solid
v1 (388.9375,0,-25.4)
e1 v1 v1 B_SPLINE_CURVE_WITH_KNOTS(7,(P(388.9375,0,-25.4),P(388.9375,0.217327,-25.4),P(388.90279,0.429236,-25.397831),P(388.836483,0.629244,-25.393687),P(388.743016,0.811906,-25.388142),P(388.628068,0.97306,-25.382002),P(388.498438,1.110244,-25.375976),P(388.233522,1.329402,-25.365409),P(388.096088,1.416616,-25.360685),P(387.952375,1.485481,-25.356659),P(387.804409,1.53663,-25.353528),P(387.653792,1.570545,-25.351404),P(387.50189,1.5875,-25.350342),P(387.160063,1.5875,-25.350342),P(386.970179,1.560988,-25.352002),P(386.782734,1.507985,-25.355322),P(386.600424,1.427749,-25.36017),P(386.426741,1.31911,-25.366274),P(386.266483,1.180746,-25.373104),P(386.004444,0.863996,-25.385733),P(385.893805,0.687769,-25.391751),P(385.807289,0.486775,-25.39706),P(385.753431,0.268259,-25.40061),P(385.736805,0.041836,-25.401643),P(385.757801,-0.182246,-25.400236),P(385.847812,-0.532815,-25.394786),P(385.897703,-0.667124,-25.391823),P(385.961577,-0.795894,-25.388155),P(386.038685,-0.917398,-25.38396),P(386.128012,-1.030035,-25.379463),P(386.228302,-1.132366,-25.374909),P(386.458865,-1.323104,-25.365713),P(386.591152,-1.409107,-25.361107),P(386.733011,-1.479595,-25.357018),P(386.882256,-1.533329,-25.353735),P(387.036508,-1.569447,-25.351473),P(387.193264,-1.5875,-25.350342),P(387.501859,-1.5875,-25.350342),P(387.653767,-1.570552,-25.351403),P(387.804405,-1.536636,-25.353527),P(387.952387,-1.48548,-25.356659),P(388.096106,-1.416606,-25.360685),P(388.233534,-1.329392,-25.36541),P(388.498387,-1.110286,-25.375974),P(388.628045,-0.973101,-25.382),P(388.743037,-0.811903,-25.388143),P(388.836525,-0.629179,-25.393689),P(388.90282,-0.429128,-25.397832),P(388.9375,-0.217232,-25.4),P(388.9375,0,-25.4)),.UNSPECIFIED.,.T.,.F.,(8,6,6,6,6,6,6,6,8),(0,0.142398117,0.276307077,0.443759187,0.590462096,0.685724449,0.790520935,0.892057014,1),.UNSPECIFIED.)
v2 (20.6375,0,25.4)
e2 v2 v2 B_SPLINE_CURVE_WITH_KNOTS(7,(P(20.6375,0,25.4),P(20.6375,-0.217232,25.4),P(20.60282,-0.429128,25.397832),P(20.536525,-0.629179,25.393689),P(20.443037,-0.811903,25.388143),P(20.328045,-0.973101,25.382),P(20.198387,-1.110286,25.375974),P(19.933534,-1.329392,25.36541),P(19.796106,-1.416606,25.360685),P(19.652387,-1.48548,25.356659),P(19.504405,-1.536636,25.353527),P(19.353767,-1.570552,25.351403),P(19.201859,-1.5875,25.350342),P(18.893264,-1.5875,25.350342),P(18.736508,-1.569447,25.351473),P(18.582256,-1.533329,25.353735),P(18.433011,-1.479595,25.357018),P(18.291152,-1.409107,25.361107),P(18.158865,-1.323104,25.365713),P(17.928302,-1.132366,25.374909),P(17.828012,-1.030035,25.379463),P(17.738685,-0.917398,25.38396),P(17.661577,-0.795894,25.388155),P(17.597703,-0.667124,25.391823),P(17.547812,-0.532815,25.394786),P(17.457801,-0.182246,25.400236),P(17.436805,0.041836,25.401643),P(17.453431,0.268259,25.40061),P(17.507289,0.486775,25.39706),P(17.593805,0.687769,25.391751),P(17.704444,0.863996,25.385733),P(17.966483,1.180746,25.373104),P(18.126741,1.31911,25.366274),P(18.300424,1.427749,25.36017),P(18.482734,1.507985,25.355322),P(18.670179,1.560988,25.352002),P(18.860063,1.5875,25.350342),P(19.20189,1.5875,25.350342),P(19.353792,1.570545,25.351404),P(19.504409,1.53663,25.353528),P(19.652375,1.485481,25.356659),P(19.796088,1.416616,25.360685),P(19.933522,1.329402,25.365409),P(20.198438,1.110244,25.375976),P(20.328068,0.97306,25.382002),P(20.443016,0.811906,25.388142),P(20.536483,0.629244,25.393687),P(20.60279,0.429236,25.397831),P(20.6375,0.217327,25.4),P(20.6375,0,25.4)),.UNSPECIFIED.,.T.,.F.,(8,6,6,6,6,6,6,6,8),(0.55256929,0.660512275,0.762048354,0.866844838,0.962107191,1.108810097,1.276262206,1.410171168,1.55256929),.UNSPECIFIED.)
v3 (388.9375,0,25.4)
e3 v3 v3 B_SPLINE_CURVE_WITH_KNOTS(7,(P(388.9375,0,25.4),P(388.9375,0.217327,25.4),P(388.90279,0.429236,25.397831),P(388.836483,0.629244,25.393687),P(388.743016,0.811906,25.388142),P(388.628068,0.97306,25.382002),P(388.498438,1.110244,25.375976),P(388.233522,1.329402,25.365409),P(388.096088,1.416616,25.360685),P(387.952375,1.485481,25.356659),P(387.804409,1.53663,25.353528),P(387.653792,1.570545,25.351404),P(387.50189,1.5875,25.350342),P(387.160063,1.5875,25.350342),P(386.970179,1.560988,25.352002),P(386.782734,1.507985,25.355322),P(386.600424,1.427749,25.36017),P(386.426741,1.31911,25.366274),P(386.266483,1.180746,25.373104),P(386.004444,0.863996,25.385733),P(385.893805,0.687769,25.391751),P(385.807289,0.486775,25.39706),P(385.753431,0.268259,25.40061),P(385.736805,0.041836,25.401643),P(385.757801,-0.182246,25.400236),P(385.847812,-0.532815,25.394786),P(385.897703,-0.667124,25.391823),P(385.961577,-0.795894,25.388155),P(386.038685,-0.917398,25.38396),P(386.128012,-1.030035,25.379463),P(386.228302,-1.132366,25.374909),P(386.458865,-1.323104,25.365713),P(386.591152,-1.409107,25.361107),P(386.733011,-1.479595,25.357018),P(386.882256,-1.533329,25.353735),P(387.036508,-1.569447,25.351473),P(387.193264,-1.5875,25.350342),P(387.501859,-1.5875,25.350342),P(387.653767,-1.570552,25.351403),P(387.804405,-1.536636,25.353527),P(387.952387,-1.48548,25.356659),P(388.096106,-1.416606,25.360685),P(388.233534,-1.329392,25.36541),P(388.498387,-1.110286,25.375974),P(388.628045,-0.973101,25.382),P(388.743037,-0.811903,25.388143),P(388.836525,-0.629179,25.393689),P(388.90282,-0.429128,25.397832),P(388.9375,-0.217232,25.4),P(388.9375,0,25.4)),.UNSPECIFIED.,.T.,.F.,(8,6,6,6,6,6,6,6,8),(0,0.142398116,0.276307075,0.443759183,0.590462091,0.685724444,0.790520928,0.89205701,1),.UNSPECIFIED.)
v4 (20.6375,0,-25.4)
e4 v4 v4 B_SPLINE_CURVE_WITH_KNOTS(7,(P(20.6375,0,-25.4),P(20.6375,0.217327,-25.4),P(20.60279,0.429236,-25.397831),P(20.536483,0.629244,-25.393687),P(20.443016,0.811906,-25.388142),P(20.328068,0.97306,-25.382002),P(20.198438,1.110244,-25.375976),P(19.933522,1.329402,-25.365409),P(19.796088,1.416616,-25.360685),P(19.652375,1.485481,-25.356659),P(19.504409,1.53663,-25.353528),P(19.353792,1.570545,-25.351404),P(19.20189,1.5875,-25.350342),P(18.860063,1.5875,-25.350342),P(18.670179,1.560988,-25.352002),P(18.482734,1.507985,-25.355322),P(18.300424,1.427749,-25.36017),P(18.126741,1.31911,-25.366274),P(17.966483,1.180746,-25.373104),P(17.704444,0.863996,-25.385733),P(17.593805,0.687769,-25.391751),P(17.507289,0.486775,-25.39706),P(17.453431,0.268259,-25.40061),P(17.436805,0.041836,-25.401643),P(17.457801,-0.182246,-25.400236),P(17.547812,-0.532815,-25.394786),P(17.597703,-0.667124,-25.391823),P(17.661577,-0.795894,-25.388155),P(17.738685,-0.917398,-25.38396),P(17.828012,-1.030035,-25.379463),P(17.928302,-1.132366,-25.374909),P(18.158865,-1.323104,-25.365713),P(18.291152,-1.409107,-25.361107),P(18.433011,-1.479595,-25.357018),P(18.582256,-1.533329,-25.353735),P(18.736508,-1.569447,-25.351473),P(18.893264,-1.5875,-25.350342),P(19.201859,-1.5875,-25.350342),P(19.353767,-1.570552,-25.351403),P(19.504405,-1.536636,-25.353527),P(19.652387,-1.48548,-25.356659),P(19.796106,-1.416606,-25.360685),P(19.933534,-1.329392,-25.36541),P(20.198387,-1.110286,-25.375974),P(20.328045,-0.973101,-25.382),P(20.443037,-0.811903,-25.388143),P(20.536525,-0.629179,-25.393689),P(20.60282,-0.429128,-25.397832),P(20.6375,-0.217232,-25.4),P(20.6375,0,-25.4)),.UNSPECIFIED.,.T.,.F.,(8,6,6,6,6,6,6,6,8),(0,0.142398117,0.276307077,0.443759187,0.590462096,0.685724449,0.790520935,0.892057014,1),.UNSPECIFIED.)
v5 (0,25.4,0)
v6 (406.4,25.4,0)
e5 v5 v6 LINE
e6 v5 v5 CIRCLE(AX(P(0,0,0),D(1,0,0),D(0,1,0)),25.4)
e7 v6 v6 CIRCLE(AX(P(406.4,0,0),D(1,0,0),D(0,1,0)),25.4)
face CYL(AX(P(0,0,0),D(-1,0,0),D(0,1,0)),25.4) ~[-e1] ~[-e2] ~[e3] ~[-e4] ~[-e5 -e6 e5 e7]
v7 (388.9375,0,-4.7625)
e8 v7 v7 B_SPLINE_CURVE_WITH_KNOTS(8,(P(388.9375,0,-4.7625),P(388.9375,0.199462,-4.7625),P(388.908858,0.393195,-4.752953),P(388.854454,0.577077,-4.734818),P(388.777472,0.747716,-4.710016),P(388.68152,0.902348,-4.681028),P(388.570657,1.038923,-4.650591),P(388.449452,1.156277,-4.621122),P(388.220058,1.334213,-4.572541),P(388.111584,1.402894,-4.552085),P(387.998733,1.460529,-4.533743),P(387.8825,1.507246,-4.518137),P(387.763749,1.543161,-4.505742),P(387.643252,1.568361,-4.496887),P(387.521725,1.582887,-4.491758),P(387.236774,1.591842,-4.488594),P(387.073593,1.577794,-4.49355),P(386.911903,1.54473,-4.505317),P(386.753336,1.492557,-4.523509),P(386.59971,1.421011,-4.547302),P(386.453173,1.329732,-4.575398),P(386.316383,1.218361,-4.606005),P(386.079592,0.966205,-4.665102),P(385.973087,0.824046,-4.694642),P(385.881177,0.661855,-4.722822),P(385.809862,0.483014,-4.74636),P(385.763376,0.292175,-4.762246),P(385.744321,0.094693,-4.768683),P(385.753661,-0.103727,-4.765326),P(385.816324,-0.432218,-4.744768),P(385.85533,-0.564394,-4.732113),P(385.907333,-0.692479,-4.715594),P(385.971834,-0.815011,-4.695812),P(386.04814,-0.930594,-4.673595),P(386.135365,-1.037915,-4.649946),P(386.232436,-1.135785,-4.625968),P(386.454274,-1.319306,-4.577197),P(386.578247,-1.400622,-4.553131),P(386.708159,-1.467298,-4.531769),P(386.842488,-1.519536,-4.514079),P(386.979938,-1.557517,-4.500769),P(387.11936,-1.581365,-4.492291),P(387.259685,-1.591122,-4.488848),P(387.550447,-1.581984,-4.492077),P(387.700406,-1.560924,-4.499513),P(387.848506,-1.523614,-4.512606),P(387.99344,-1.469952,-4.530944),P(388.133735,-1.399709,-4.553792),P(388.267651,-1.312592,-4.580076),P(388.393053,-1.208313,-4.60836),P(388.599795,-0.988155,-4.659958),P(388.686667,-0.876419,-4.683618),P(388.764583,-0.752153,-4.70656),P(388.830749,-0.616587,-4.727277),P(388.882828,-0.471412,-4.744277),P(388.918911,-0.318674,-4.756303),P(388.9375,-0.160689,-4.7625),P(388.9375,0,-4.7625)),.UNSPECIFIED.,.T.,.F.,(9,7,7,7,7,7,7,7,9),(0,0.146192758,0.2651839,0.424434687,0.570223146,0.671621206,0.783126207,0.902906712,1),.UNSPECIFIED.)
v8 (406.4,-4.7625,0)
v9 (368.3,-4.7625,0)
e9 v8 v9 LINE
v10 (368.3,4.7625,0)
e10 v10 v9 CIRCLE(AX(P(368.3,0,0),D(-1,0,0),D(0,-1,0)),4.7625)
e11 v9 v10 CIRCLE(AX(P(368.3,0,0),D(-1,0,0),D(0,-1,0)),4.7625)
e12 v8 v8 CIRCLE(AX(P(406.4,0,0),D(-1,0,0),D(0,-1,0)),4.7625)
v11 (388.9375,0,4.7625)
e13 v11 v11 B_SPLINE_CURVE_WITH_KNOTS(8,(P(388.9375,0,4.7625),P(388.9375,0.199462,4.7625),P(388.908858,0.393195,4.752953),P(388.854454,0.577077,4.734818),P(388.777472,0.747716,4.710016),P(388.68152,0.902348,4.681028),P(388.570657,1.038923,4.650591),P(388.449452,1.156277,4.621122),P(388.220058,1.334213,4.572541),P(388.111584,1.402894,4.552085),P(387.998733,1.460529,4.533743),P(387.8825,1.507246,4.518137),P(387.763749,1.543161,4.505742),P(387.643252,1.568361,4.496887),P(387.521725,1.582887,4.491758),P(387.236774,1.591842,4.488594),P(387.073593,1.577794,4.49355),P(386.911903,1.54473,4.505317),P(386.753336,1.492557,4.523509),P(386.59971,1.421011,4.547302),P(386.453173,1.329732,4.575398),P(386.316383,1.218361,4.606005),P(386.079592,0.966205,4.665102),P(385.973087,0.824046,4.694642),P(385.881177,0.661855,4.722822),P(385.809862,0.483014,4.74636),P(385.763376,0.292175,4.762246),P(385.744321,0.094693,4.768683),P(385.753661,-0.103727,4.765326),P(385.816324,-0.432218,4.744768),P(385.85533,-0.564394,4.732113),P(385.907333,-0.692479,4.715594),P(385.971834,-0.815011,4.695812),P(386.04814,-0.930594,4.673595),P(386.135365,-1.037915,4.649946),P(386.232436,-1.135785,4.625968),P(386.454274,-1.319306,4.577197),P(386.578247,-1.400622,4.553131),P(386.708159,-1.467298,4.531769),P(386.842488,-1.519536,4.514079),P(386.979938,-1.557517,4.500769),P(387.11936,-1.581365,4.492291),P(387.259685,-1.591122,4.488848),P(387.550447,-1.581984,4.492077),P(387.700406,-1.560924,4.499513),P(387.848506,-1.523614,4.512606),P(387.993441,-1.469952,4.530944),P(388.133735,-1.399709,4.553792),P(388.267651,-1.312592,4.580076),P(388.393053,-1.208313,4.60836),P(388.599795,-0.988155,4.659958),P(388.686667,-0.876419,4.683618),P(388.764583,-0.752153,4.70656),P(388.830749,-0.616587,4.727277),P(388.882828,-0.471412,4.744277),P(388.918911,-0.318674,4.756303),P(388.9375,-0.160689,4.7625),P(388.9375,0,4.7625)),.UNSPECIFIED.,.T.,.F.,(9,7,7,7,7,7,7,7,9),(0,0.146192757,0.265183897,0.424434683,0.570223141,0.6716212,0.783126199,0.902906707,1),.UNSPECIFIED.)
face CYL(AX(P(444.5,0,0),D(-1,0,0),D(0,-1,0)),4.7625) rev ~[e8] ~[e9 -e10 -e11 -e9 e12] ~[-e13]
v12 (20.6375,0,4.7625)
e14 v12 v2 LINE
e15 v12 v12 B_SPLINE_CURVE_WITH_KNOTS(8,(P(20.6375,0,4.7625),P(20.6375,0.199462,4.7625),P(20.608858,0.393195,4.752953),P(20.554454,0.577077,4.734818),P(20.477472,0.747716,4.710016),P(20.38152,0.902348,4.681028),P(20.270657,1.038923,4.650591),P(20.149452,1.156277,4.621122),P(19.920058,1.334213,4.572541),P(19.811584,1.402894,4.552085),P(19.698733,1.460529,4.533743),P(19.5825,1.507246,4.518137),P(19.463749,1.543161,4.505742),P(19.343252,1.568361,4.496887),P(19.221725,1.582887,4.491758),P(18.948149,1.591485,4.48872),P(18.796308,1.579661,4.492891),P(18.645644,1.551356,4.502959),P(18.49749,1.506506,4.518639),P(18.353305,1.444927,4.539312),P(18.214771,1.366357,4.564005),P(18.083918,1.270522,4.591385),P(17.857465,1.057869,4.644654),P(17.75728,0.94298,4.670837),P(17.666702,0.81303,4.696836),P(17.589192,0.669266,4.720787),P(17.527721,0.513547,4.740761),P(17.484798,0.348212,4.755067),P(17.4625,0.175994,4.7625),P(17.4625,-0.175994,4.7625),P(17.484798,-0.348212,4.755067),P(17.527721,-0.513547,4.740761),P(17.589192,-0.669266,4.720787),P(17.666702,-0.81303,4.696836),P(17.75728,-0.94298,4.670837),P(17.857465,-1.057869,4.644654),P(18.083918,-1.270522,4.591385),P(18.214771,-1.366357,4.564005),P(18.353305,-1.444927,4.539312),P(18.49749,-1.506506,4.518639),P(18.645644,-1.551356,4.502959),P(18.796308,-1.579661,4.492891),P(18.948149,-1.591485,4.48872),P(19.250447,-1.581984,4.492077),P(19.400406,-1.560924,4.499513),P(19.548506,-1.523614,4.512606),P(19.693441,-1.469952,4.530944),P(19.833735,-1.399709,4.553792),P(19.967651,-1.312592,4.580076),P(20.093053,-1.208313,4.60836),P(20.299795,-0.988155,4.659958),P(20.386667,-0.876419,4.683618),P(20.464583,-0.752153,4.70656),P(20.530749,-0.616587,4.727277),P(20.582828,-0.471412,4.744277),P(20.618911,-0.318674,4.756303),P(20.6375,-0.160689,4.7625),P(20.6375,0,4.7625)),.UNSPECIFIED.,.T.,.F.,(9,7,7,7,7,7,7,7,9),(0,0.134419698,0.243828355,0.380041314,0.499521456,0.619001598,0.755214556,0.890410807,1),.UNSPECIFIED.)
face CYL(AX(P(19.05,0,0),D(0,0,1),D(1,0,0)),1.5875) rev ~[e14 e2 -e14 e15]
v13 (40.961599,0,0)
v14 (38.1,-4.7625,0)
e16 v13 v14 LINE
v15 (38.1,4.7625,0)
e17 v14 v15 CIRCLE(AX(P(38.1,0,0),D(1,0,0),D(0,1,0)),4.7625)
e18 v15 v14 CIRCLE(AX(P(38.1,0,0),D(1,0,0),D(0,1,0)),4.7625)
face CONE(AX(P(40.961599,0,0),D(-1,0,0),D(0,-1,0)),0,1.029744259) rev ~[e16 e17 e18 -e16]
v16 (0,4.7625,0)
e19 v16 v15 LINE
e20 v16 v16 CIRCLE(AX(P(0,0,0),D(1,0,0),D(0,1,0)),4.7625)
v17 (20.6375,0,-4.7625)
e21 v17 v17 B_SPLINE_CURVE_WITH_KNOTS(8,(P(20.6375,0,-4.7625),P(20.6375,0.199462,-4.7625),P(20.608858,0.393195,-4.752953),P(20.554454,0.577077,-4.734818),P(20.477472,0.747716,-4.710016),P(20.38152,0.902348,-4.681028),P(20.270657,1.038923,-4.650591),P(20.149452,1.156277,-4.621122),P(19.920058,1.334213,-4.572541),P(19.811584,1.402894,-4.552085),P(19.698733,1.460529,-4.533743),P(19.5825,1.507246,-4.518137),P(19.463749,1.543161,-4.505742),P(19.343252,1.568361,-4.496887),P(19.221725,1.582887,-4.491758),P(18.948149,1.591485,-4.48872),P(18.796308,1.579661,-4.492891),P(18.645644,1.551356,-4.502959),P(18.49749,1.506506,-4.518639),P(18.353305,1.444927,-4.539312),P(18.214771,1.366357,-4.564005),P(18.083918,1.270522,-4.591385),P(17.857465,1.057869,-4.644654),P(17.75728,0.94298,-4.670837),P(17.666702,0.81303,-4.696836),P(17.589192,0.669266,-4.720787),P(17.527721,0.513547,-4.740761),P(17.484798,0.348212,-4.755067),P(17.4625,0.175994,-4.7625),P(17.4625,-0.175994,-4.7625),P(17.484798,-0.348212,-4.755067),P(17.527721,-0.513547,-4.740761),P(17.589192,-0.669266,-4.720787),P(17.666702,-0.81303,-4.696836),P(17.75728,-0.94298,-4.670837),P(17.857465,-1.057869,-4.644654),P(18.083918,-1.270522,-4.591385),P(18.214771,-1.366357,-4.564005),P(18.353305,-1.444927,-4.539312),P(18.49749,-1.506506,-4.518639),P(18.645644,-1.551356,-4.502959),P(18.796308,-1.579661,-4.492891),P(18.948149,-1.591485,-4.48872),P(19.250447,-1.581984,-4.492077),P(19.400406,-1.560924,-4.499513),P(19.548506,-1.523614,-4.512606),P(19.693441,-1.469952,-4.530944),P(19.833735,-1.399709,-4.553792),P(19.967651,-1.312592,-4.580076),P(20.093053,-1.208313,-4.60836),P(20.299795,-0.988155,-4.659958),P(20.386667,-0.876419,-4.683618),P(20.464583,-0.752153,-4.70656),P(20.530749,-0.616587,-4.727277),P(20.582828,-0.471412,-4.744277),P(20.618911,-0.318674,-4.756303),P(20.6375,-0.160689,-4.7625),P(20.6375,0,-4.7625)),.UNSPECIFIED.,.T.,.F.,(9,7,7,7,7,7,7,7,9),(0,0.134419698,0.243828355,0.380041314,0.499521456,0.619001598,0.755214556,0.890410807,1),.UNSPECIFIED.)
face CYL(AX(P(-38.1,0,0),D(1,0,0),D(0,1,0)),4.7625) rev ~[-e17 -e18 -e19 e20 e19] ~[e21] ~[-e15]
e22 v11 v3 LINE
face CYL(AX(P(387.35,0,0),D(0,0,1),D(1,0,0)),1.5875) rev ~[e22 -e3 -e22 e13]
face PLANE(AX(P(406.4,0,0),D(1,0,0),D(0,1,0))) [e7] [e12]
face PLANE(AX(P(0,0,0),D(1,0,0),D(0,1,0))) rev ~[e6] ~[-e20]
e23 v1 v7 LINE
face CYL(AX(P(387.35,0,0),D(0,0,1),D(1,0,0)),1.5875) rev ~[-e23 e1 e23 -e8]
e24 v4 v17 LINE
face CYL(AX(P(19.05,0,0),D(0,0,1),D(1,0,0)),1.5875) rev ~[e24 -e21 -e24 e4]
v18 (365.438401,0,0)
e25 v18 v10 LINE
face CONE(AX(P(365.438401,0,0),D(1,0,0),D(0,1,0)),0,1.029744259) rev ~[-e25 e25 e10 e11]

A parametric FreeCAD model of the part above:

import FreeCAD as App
import Part
import Sketcher

V = App.Vector
Q = App.Units.Quantity

doc = App.newDocument("Part")
body = doc.addObject("PartDesign::Body", "Body")

sketch1 = body.newObject("Sketcher::SketchObject", "Sketch")
sketch1.AttachmentSupport = (doc.getObject("YZ_Plane"), [""])
sketch1.MapMode = "FlatFace"
sketch1.addGeometry(Part.Circle(V(0, 0, 0), V(0, 0, 1), 25.4), False)
sketch1.addConstraint([
    Sketcher.Constraint("Coincident", 0, 3, -1, 1),
    Sketcher.Constraint("Diameter", 0, Q("2 in")),
])
pad1 = body.newObject("PartDesign::Pad", "Pad")
pad1.Profile = sketch1
pad1.Length = Q("16 in")

sketch2 = body.newObject("Sketcher::SketchObject", "Sketch001")
sketch2.AttachmentSupport = (doc.getObject("YZ_Plane"), [""])
sketch2.MapMode = "FlatFace"
sketch2.AttachmentOffset = App.Placement(V(0, 0, 16 * 25.4), App.Rotation())
sketch2.addGeometry(Part.Circle(V(0, 0, 0), V(0, 0, 1), 4.7625), False)
sketch2.addConstraint([
    Sketcher.Constraint("Coincident", 0, 3, -1, 1),
    Sketcher.Constraint("Diameter", 0, Q("0.375 in")),
])
doc.recompute()
hole = body.newObject("PartDesign::Hole", "Hole")
hole.Profile = sketch2
hole.ThreadType = "None"
hole.Diameter = Q("0.375 in")
hole.DepthType = "Dimension"
hole.Depth = Q("1.5 in")
hole.DrillPoint = "Angled"
hole.DrillPointAngle = 118

sketch3 = body.newObject("Sketcher::SketchObject", "Sketch002")
sketch3.AttachmentSupport = (doc.getObject("YZ_Plane"), [""])
sketch3.MapMode = "FlatFace"
sketch3.addGeometry(Part.Circle(V(0, 0, 0), V(0, 0, 1), 4.7625), False)
sketch3.addConstraint([
    Sketcher.Constraint("Coincident", 0, 3, -1, 1),
    Sketcher.Constraint("Diameter", 0, Q("0.375 in")),
])
doc.recompute()
hole2 = body.newObject("PartDesign::Hole", "Hole001")
hole2.Profile = sketch3
hole2.ThreadType = "None"
hole2.Diameter = Q("0.375 in")
hole2.DepthType = "Dimension"
hole2.Depth = Q("1.5 in")
hole2.DrillPoint = "Angled"
hole2.DrillPointAngle = 118
hole2.Reversed = True
body2 = doc.addObject("PartDesign::Body", "Body001")

sketch4 = body2.newObject("Sketcher::SketchObject", "Sketch003")
sketch4.AttachmentSupport = (doc.getObject("XY_Plane001"), [""])
sketch4.MapMode = "FlatFace"
sketch4.addGeometry(Part.Circle(V(19.05, 0, 0), V(0, 0, 1), 1.5875), False)
sketch4.addConstraint([
    Sketcher.Constraint("PointOnObject", 0, 3, -1),
    Sketcher.Constraint("Diameter", 0, Q("0.125 in")),
    Sketcher.Constraint("DistanceX", -1, 1, 0, 3, Q("0.75 in")),
])
pad2 = body2.newObject("PartDesign::Pad", "Pad001")
pad2.Profile = sketch4
pad2.Length = Q("2 in")
pad2.Midplane = True
doc.recompute()

boolean = body.newObject("PartDesign::Boolean", "Boolean")
boolean.Type = "Cut"
boolean.addObjects([body2])
body3 = doc.addObject("PartDesign::Body", "Body002")

sketch5 = body3.newObject("Sketcher::SketchObject", "Sketch004")
sketch5.AttachmentSupport = (doc.getObject("XY_Plane002"), [""])
sketch5.MapMode = "FlatFace"
sketch5.addGeometry(Part.Circle(V(387.35, 0, 0), V(0, 0, 1), 1.5875), False)
sketch5.addConstraint([
    Sketcher.Constraint("PointOnObject", 0, 3, -1),
    Sketcher.Constraint("Diameter", 0, Q("0.125 in")),
    Sketcher.Constraint("DistanceX", -1, 1, 0, 3, Q("15.25 in")),
])
pad3 = body3.newObject("PartDesign::Pad", "Pad002")
pad3.Profile = sketch5
pad3.Length = Q("2.5 in")
pad3.Midplane = True
doc.recompute()

boolean2 = body.newObject("PartDesign::Boolean", "Boolean001")
boolean2.Type = "Cut"
boolean2.addObjects([body3])

doc.recompute()
